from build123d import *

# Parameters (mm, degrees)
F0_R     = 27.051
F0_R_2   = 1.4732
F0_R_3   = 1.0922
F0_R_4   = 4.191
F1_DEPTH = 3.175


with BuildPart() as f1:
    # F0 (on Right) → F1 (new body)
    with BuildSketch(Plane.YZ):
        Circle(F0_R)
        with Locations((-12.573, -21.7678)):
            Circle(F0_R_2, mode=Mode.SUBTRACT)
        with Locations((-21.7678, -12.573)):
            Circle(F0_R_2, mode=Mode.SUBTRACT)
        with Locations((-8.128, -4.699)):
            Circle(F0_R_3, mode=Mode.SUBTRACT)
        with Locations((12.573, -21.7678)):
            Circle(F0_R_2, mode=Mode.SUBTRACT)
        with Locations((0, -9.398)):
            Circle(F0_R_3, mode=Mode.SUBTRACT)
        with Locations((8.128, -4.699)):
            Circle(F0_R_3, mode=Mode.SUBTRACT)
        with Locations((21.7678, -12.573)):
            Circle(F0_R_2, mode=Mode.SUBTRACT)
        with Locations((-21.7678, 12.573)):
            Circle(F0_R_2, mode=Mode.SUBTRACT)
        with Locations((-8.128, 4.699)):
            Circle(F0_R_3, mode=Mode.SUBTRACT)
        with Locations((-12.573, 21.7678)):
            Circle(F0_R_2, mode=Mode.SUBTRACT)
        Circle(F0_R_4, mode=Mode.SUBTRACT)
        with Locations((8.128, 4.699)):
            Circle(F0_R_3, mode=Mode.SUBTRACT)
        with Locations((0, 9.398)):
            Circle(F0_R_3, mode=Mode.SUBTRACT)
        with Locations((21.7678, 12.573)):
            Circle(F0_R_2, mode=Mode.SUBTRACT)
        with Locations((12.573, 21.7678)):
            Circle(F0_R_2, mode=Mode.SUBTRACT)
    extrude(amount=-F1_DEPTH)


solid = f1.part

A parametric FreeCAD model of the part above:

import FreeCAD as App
import Part
import Sketcher
from FreeCAD import Vector
Q = App.Units.Quantity

doc = App.newDocument("Part")
body = doc.addObject("PartDesign::Body", "Body")

# Sketch on YZ plane
sketch1 = body.newObject("Sketcher::SketchObject", "Sketch")
sketch1.AttachmentSupport = (doc.getObject("YZ_Plane"), [""])
sketch1.MapMode = "FlatFace"
sketch1.addGeometry([
    Part.Circle(Vector(0, 0, 0), Vector(0, 0, 1), 27.1),  # 0
    Part.Circle(Vector(-12.6, -21.8, 0), Vector(0, 0, 1), 1.5),  # 1
    Part.Circle(Vector(-21.8, -12.6, 0), Vector(0, 0, 1), 1.5),  # 2
    Part.Circle(Vector(-8.1, -4.7, 0), Vector(0, 0, 1), 1.1),  # 3
    Part.Circle(Vector(12.6, -21.8, 0), Vector(0, 0, 1), 1.5),  # 4
    Part.Circle(Vector(21.8, -12.6, 0), Vector(0, 0, 1), 1.5),  # 5
    Part.Circle(Vector(0, -9.4, 0), Vector(0, 0, 1), 1.1),  # 6
    Part.Circle(Vector(8.1, -4.7, 0), Vector(0, 0, 1), 1.1),  # 7
    Part.Circle(Vector(-8.1, 4.7, 0), Vector(0, 0, 1), 1.1),  # 8
    Part.Circle(Vector(-21.8, 12.6, 0), Vector(0, 0, 1), 1.5),  # 9
    Part.Circle(Vector(-12.6, 21.8, 0), Vector(0, 0, 1), 1.5),  # 10
    Part.Circle(Vector(0, 0, 0), Vector(0, 0, 1), 4.2),  # 11
    Part.Circle(Vector(8.1, 4.7, 0), Vector(0, 0, 1), 1.1),  # 12
    Part.Circle(Vector(0, 9.4, 0), Vector(0, 0, 1), 1.1),  # 13
    Part.Circle(Vector(21.8, 12.6, 0), Vector(0, 0, 1), 1.5),  # 14
    Part.Circle(Vector(12.6, 21.8, 0), Vector(0, 0, 1), 1.5),  # 15
], False)
sketch1.addConstraint([
    Sketcher.Constraint("Coincident", 0, 3, -1, 1),
    Sketcher.Constraint("Coincident", 11, 3, -1, 1),
    Sketcher.Constraint("Equal", 1, 2),
    Sketcher.Constraint("Equal", 2, 4),
    Sketcher.Constraint("Equal", 4, 5),
    Sketcher.Constraint("Equal", 3, 6),
    Sketcher.Constraint("Equal", 6, 7),
    Sketcher.Constraint("Equal", 7, 8),
    Sketcher.Constraint("Equal", 5, 9),
    Sketcher.Constraint("Equal", 9, 10),
    Sketcher.Constraint("Equal", 8, 12),
    Sketcher.Constraint("Equal", 12, 13),
    Sketcher.Constraint("Equal", 10, 14),
    Sketcher.Constraint("Equal", 14, 15),
    Sketcher.Constraint("Symmetric", 7, 3, 8, 3, -1, 1),
    Sketcher.Constraint("Symmetric", 5, 3, 9, 3, -1, 1),
    Sketcher.Constraint("Symmetric", 4, 3, 10, 3, -1, 1),
    Sketcher.Constraint("Symmetric", 3, 3, 12, 3, -1, 1),
    Sketcher.Constraint("Symmetric", 6, 3, 13, 3, -1, 1),
    Sketcher.Constraint("Symmetric", 2, 3, 14, 3, -1, 1),
    Sketcher.Constraint("Symmetric", 1, 3, 15, 3, -1, 1),
    Sketcher.Constraint("Symmetric", 1, 3, 4, 3, -2),
    Sketcher.Constraint("Symmetric", 2, 3, 5, 3, -2),
    Sketcher.Constraint("Symmetric", 3, 3, 7, 3, -2),
    Sketcher.Constraint("PointOnObject", 6, 3, -2),
    Sketcher.Constraint("Diameter", 0, Q("2.13 in")),
    Sketcher.Constraint("Diameter", 11, Q("0.33 in")),
    Sketcher.Constraint("Diameter", 1, Q("0.116 in")),
    Sketcher.Constraint("Diameter", 3, Q("0.086 in")),
    Sketcher.Constraint("DistanceX", 3, 3, -1, 1, Q("0.32 in")),
    Sketcher.Constraint("DistanceY", 6, 3, -1, 1, Q("0.37 in")),
    Sketcher.Constraint("DistanceY", 2, 3, 3, 3, Q("0.31 in")),
    Sketcher.Constraint("DistanceX", 1, 3, 4, 3, Q("0.99 in")),
    Sketcher.Constraint("DistanceY", 3, 3, 8, 3, Q("0.37 in")),
    Sketcher.Constraint("DistanceY", 1, 3, -1, 1, Q("0.857 in")),
    Sketcher.Constraint("DistanceX", 2, 3, -1, 1, Q("0.857 in")),
])
pad1 = body.newObject("PartDesign::Pad", "Pad")
pad1.Profile = sketch1
pad1.Length = Q("0.125 in")
pad1.Reversed = True

doc.recompute()
